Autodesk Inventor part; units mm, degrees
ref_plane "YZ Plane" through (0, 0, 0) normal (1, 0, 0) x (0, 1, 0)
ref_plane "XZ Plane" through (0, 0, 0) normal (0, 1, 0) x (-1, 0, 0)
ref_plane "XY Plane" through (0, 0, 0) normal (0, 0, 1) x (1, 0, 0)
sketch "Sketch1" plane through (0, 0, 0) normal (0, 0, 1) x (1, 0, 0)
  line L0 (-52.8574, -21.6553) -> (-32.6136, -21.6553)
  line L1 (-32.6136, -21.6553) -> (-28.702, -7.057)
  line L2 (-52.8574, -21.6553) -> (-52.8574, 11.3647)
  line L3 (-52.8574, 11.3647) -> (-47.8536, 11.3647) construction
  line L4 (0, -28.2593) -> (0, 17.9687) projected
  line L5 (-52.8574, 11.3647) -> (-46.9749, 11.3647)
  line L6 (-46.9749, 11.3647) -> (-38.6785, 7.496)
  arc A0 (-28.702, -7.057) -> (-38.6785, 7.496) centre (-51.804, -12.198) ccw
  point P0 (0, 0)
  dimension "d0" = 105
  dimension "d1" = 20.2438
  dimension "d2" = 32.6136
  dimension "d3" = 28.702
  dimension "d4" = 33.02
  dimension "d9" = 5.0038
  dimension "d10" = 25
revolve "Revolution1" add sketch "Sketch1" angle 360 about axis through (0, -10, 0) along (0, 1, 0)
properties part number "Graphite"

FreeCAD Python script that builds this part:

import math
import FreeCAD as App
import Part
import Sketcher
from FreeCAD import Vector
Q = App.Units.Quantity

doc = App.newDocument("Part")
body = doc.addObject("PartDesign::Body", "Body")

# Sketch on XY plane
sketch1 = body.newObject("Sketcher::SketchObject", "Sketch")
sketch1.AttachmentSupport = (doc.getObject("XY_Plane"), [""])
sketch1.MapMode = "FlatFace"
sketch1.addGeometry(Part.LineSegment(Vector(-53, 11, 0), Vector(-53, -22, 0)), False)
sketch1.addGeometry(Part.LineSegment(Vector(-53, -22, 0), Vector(-33, -22, 0)), False)
sketch1.addGeometry(Part.LineSegment(Vector(-33, -22, 0), Vector(-29, -7, 0)), False)
sketch1.addGeometry(Part.ArcOfCircle(Part.Circle(Vector(-52, -12, 0), Vector(0, 0, 1), 24), math.radians(13), math.radians(56)), False)
sketch1.addGeometry(Part.LineSegment(Vector(-39, 7, 0), Vector(-47, 11, 0)), False)
sketch1.addGeometry(Part.LineSegment(Vector(-47, 11, 0), Vector(-53, 11, 0)), False)
sketch1.addConstraint(Sketcher.Constraint("Coincident", 0, 2, 1, 1))
sketch1.addConstraint(Sketcher.Constraint("Coincident", 1, 2, 2, 1))
sketch1.addConstraint(Sketcher.Constraint("Coincident", 2, 2, 3, 1))
sketch1.addConstraint(Sketcher.Constraint("Coincident", 3, 2, 4, 1))
sketch1.addConstraint(Sketcher.Constraint("Coincident", 4, 2, 5, 1))
sketch1.addConstraint(Sketcher.Constraint("Coincident", 5, 2, 0, 1))
sketch1.addConstraint(Sketcher.Constraint("Vertical", 0))
sketch1.addConstraint(Sketcher.Constraint("Horizontal", 1))
sketch1.addConstraint(Sketcher.Constraint("Horizontal", 5))
sketch1.addConstraint(Sketcher.Constraint("DistanceY", 0, 2, 0, 1, Q("1.3 in")))
sketch1.addConstraint(Sketcher.Constraint("DistanceX", 1, 1, 1, 2, Q("0.797 in")))
sketch1.addConstraint(Sketcher.Constraint("DistanceX", 2, 2, -1, 1, Q("1.13 in")))
sketch1.addConstraint(Sketcher.Constraint("DistanceX", 1, 2, -1, 1, Q("1.284 in")))
sketch1.addConstraint(Sketcher.Constraint("Angle", 2, Q("75 deg")))
sketch1.addConstraint(Sketcher.Constraint("Angle", 4, Q("154.9999 deg")))
sketch1.addConstraint(Sketcher.Constraint("Radius", 3, 23.667))
sketch1.addConstraint(Sketcher.Constraint("DistanceX", 5, 2, 5, 1, Q("0.2316 in")))
sketch1.addConstraint(Sketcher.Constraint("Distance", 4, Q("0.3604 in")))
sketch1.addConstraint(Sketcher.Constraint("DistanceY", 3, 3, -1, 1, 12.198))
revolution = body.newObject("PartDesign::Revolution", "Revolution")
revolution.Profile = sketch1
revolution.ReferenceAxis = (sketch1, ["V_Axis"])
revolution.Angle = 360

doc.recompute()
